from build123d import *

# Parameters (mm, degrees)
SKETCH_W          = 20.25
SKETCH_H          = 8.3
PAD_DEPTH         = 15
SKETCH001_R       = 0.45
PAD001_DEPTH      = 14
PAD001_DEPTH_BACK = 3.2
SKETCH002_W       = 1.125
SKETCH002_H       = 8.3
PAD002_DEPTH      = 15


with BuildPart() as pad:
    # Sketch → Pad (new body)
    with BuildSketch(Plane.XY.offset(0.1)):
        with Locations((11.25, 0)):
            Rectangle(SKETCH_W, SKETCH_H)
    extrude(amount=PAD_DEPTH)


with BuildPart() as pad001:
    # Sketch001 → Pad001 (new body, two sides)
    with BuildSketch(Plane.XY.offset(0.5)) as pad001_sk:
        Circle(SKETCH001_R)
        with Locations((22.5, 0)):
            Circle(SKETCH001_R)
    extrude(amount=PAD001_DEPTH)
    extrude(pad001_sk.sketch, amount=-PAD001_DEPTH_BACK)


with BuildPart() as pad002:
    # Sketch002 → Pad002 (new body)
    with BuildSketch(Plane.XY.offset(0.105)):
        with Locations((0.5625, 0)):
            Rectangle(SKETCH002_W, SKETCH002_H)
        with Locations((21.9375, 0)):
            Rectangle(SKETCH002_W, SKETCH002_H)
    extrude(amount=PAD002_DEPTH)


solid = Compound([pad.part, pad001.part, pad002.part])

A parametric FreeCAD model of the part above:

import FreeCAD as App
import Part
import Sketcher
from FreeCAD import Vector
Q = App.Units.Quantity


def add_polygon(sketch, points):
    """Adds a closed chain of lines whose ends are joined by coincident constraints."""
    first, n = sketch.GeometryCount, len(points)
    for a, b in zip(points, points[1:] + points[:1]):
        sketch.addGeometry(Part.LineSegment(App.Vector(*a, 0), App.Vector(*b, 0)), False)
    for i in range(n):
        sketch.addConstraint(Sketcher.Constraint("Coincident", first + i, 2, first + (i + 1) % n, 1))

doc = App.newDocument("Part")
body = doc.addObject("PartDesign::Body", "Body")

sketch1 = doc.addObject("Sketcher::SketchObject", "Sketch")
body.addObject(sketch1)
sketch1.AttachmentSupport = (doc.XY_Plane, [""])
sketch1.MapMode = "FlatFace"
sketch1.AttachmentOffset = App.Placement(Vector(0, 0, 0.1), App.Rotation())
add_polygon(sketch1, [(1, 4), (1, -4), (21, -4), (21, 4)])
sketch1.addConstraint([
    Sketcher.Constraint("Vertical", 0),
    Sketcher.Constraint("Horizontal", 1),
    Sketcher.Constraint("Vertical", 2),
    Sketcher.Constraint("Horizontal", 3),
    Sketcher.Constraint("DistanceY", 0, 2, 0, 1, Q("8.3 mm")),
    Sketcher.Constraint("DistanceX", 1, 1, 1, 2, Q("20.25 mm")),
    Sketcher.Constraint("DistanceY", 0, 2, -1, 1, Q("4.15 mm")),
    Sketcher.Constraint("DistanceX", -1, 1, 0, 2, Q("1.125 mm")),
])
pad1 = doc.addObject("PartDesign::Pad", "Pad")
body.addObject(pad1)
pad1.Profile = sketch1
pad1.Length = 15
body2 = doc.addObject("PartDesign::Body", "Body001")
body2.AllowCompound = True

sketch2 = doc.addObject("Sketcher::SketchObject", "Sketch001")
body2.addObject(sketch2)
sketch2.AttachmentSupport = (doc.getObject("XY_Plane001"), [""])
sketch2.MapMode = "FlatFace"
sketch2.AttachmentOffset = App.Placement(Vector(0, 0, 0.5), App.Rotation())
sketch2.addGeometry([
    Part.Circle(Vector(0, 0, 0), Vector(0, 0, 1), 0.45),
    Part.Circle(Vector(22.5, 0, 0), Vector(0, 0, 1), 0.45),
], False)
sketch2.addConstraint([
    Sketcher.Constraint("Coincident", 0, 3, -1, 1),
    Sketcher.Constraint("Equal", 0, 1),
    Sketcher.Constraint("PointOnObject", 1, 3, -1),
    Sketcher.Constraint("Diameter", 0, Q("0.9 mm")),
    Sketcher.Constraint("DistanceX", -1, 1, 1, 3, Q("22.5 mm")),
])
pad2 = doc.addObject("PartDesign::Pad", "Pad001")
body2.addObject(pad2)
pad2.Profile = sketch2
pad2.Type = "TwoLengths"
pad2.Length = 14
pad2.Length2 = 3.2
body3 = doc.addObject("PartDesign::Body", "Body002")
body3.AllowCompound = True

sketch3 = doc.addObject("Sketcher::SketchObject", "Sketch002")
body3.addObject(sketch3)
sketch3.AttachmentSupport = (doc.getObject("XY_Plane002"), [""])
sketch3.MapMode = "FlatFace"
sketch3.AttachmentOffset = App.Placement(Vector(0, 0, 0.105), App.Rotation())
add_polygon(sketch3, [(0, 4.2), (0, -4.2), (1.1, -4.2), (1.1, 4.2)])
add_polygon(sketch3, [(21.4, 4.2), (21.4, -4.2), (22.5, -4.2), (22.5, 4.2)])
sketch3.addConstraint([
    Sketcher.Constraint("Vertical", 0),
    Sketcher.Constraint("Horizontal", 1),
    Sketcher.Constraint("Vertical", 2),
    Sketcher.Constraint("Horizontal", 3),
    Sketcher.Constraint("Vertical", 4),
    Sketcher.Constraint("Horizontal", 5),
    Sketcher.Constraint("Vertical", 6),
    Sketcher.Constraint("Horizontal", 7),
    Sketcher.Constraint("Symmetric", 0, 2, 3, 2, -1, 1),
    Sketcher.Constraint("Horizontal", 1, 2, 4, 2),
    Sketcher.Constraint("Horizontal", 3, 2, 6, 2),
    Sketcher.Constraint("Equal", 3, 5),
    Sketcher.Constraint("DistanceY", 0, 2, 0, 1, Q("8.3 mm")),
    Sketcher.Constraint("DistanceX", -1, 1, 5, 2, Q("22.5 mm")),
    Sketcher.Constraint("DistanceX", 1, 1, 1, 2, Q("1.125 mm")),
])
pad3 = doc.addObject("PartDesign::Pad", "Pad002")
body3.addObject(pad3)
pad3.Profile = sketch3
pad3.Length = 15

doc.recompute()
